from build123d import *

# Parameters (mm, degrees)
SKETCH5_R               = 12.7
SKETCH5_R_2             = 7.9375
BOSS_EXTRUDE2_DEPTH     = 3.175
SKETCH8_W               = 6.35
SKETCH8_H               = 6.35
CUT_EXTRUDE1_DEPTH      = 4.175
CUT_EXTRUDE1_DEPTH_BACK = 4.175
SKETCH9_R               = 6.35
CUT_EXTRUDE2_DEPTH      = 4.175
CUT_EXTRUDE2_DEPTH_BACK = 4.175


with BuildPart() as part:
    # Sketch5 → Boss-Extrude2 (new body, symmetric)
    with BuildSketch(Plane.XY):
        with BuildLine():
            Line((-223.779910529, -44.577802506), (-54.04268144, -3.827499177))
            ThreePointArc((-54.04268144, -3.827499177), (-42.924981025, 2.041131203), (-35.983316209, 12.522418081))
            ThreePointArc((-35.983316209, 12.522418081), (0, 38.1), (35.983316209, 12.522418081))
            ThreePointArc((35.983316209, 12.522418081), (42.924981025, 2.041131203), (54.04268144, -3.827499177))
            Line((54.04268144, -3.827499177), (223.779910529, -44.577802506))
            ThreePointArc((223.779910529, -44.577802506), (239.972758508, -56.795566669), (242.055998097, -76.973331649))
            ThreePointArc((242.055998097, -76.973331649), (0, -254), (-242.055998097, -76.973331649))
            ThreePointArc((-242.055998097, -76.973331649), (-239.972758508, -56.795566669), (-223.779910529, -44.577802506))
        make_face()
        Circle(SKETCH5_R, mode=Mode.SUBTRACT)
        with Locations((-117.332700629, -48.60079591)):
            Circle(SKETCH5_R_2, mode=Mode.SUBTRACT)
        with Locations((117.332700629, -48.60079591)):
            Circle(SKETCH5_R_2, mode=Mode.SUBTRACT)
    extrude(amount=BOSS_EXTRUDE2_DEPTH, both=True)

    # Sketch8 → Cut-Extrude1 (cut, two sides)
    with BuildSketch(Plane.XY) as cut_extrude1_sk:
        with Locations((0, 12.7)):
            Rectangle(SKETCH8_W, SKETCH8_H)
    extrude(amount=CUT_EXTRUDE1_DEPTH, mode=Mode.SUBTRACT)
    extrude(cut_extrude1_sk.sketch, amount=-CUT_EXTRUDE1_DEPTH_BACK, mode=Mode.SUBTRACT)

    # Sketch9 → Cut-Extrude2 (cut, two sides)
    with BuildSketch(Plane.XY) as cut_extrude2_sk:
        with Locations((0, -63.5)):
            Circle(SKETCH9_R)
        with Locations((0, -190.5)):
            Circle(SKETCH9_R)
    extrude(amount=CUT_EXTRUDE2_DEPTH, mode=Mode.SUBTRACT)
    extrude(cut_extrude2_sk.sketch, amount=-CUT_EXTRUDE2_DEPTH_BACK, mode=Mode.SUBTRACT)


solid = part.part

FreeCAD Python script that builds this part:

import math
import FreeCAD as App
import Part
import Sketcher
from FreeCAD import Vector
Q = App.Units.Quantity

doc = App.newDocument("Part")
params = doc.addObject("Spreadsheet::Sheet", "Params")
for row, (alias, value) in enumerate([
    ("sketch1_diameter", "1 in"),
    ("sketch1_radius", "1 in"),
    ("sketch1_radius2", "10 in"),
    ("sketch1_radius3", "1.5 in"),
    ("sketch1_diameter2", "0.625 in"),
    ("pad1_length", "0.25 in"),
    ("sketch2_width", "0.25 in"),
    ("sketch3_diameter", "0.5 in"),
], start=1):
    params.set(f"A{row}", alias)
    params.set(f"B{row}", "=" + value)
    params.setAlias(f"B{row}", alias)

body = doc.addObject("PartDesign::Body", "Body")

# Sketch on XY plane
sketch1 = body.newObject("Sketcher::SketchObject", "Sketch")
sketch1.AttachmentSupport = (doc.getObject("XY_Plane"), [""])
sketch1.MapMode = "FlatFace"
sketch1.addGeometry(Part.LineSegment(Vector(-54.042681, -3.827499, 0), Vector(-223.779911, -44.577803, 0)), False)
sketch1.addGeometry(Part.ArcOfCircle(Part.Circle(Vector(-217.850398, -69.275998, 0), Vector(0, 0, 1), 25.4), math.radians(103.5), math.radians(197.640562)), False)
sketch1.addGeometry(Part.ArcOfCircle(Part.Circle(Vector(0, 0, 0), Vector(0, 0, 1), 254), math.radians(-162.359438), math.radians(-17.640562)), False)
sketch1.addGeometry(Part.ArcOfCircle(Part.Circle(Vector(217.850398, -69.275998, 0), Vector(0, 0, 1), 25.4), math.radians(-17.640562), math.radians(76.5)), False)
sketch1.addGeometry(Part.LineSegment(Vector(223.779911, -44.577803, 0), Vector(54.042681, -3.827499, 0)), False)
sketch1.addGeometry(Part.ArcOfCircle(Part.Circle(Vector(59.972194, 20.870697, 0), Vector(0, 0, 1), 25.4), math.radians(-160.811785), math.radians(-103.5)), False)
sketch1.addGeometry(Part.ArcOfCircle(Part.Circle(Vector(0, 0, 0), Vector(0, 0, 1), 38.1), math.radians(19.188215), math.radians(160.811785)), False)
sketch1.addGeometry(Part.ArcOfCircle(Part.Circle(Vector(-59.972194, 20.870697, 0), Vector(0, 0, 1), 25.4), math.radians(-76.5), math.radians(-19.188215)), False)
sketch1.addGeometry(Part.Circle(Vector(117.332701, -48.600796, 0), Vector(0, 0, 1), 7.9375), False)
sketch1.addGeometry(Part.Circle(Vector(-117.332701, -48.600796, 0), Vector(0, 0, 1), 7.9375), False)
sketch1.addGeometry(Part.Circle(Vector(0, 0, 0), Vector(0, 0, 1), 12.7), False)
sketch1.addConstraint(Sketcher.Constraint("Tangent", 0, 2, 1, 1))
sketch1.addConstraint(Sketcher.Constraint("Tangent", 1, 2, 2, 1))
sketch1.addConstraint(Sketcher.Constraint("Tangent", 2, 2, 3, 1))
sketch1.addConstraint(Sketcher.Constraint("Tangent", 3, 2, 4, 1))
sketch1.addConstraint(Sketcher.Constraint("Tangent", 4, 2, 5, 2))
sketch1.addConstraint(Sketcher.Constraint("Tangent", 5, 1, 6, 1))
sketch1.addConstraint(Sketcher.Constraint("Tangent", 6, 2, 7, 2))
sketch1.addConstraint(Sketcher.Constraint("Tangent", 7, 1, 0, 1))
sketch1.addConstraint(Sketcher.Constraint("Coincident", 2, 3, -1, 1))
sketch1.addConstraint(Sketcher.Constraint("Coincident", 6, 3, -1, 1))
sketch1.addConstraint(Sketcher.Constraint("Coincident", 10, 3, -1, 1))
sketch1.addConstraint(Sketcher.Constraint("Equal", 1, 3))
sketch1.addConstraint(Sketcher.Constraint("Equal", 3, 5))
sketch1.addConstraint(Sketcher.Constraint("Equal", 5, 7))
sketch1.addConstraint(Sketcher.Constraint("Equal", 8, 9))
sketch1.addConstraint(Sketcher.Constraint("Symmetric", 8, 3, 9, 3, -2))
sketch1.addConstraint(Sketcher.Constraint("Symmetric", 0, 2, 3, 2, -2))
sketch1.addConstraint(Sketcher.Constraint("Diameter", 10, Q("1 in")))
sketch1.addConstraint(Sketcher.Constraint("Radius", 1, Q("1 in")))
sketch1.addConstraint(Sketcher.Constraint("Radius", 2, Q("10 in")))
sketch1.addConstraint(Sketcher.Constraint("Radius", 6, Q("1.5 in")))
sketch1.addConstraint(Sketcher.Constraint("Diameter", 8, Q("0.625 in")))
sketch1.addConstraint(Sketcher.Constraint("Angle", 0, Q("-166.5 deg")))
sketch1.addConstraint(Sketcher.Constraint("DistanceX", 1, 3, -1, 1, 217.850398))
sketch1.addConstraint(Sketcher.Constraint("DistanceX", -1, 1, 8, 3, 117.332701))
sketch1.addConstraint(Sketcher.Constraint("DistanceY", 8, 3, -1, 1, 48.600796))
sketch1.setExpression("Constraints[17]", "Params.sketch1_diameter")
sketch1.setExpression("Constraints[18]", "Params.sketch1_radius")
sketch1.setExpression("Constraints[19]", "Params.sketch1_radius2")
sketch1.setExpression("Constraints[20]", "Params.sketch1_radius3")
sketch1.setExpression("Constraints[21]", "Params.sketch1_diameter2")
pad1 = body.newObject("PartDesign::Pad", "Pad")
pad1.Profile = sketch1
pad1.setExpression("Length", "Params.pad1_length")
pad1.Midplane = True

# Sketch on XY plane
sketch2 = body.newObject("Sketcher::SketchObject", "Sketch001")
sketch2.AttachmentSupport = (doc.getObject("XY_Plane"), [""])
sketch2.MapMode = "FlatFace"
sketch2.addGeometry(Part.LineSegment(Vector(-3.175, 15.875, 0), Vector(-3.175, 9.525, 0)), False)
sketch2.addGeometry(Part.LineSegment(Vector(-3.175, 9.525, 0), Vector(3.175, 9.525, 0)), False)
sketch2.addGeometry(Part.LineSegment(Vector(3.175, 9.525, 0), Vector(3.175, 15.875, 0)), False)
sketch2.addGeometry(Part.LineSegment(Vector(3.175, 15.875, 0), Vector(-3.175, 15.875, 0)), False)
sketch2.addConstraint(Sketcher.Constraint("Coincident", 0, 2, 1, 1))
sketch2.addConstraint(Sketcher.Constraint("Coincident", 1, 2, 2, 1))
sketch2.addConstraint(Sketcher.Constraint("Coincident", 2, 2, 3, 1))
sketch2.addConstraint(Sketcher.Constraint("Coincident", 3, 2, 0, 1))
sketch2.addConstraint(Sketcher.Constraint("Vertical", 0))
sketch2.addConstraint(Sketcher.Constraint("Horizontal", 1))
sketch2.addConstraint(Sketcher.Constraint("Vertical", 2))
sketch2.addConstraint(Sketcher.Constraint("Horizontal", 3))
sketch2.addConstraint(Sketcher.Constraint("Equal", 3, 0))
sketch2.addConstraint(Sketcher.Constraint("DistanceX", 1, 1, 1, 2, Q("0.25 in")))
sketch2.addConstraint(Sketcher.Constraint("DistanceX", 0, 2, -1, 1, Q("0.125 in")))
sketch2.addConstraint(Sketcher.Constraint("DistanceY", -1, 1, 0, 2, Q("0.375 in")))
sketch2.setExpression("Constraints[9]", "Params.sketch2_width")
pocket1 = body.newObject("PartDesign::Pocket", "Pocket")
pocket1.Profile = sketch2
pocket1.Type = "ThroughAll"
pocket1.Midplane = True

# Sketch on XY plane
sketch3 = body.newObject("Sketcher::SketchObject", "Sketch002")
sketch3.AttachmentSupport = (doc.getObject("XY_Plane"), [""])
sketch3.MapMode = "FlatFace"
sketch3.addGeometry(Part.Circle(Vector(0, -63.5, 0), Vector(0, 0, 1), 6.35), False)
sketch3.addGeometry(Part.Circle(Vector(0, -190.5, 0), Vector(0, 0, 1), 6.35), False)
sketch3.addConstraint(Sketcher.Constraint("Equal", 0, 1))
sketch3.addConstraint(Sketcher.Constraint("PointOnObject", 0, 3, -2))
sketch3.addConstraint(Sketcher.Constraint("PointOnObject", 1, 3, -2))
sketch3.addConstraint(Sketcher.Constraint("Diameter", 0, Q("0.5 in")))
sketch3.addConstraint(Sketcher.Constraint("DistanceY", 1, 3, 0, 3, Q("5 in")))
sketch3.addConstraint(Sketcher.Constraint("DistanceY", 0, 3, -1, 1, Q("2.5 in")))
sketch3.setExpression("Constraints[3]", "Params.sketch3_diameter")
pocket2 = body.newObject("PartDesign::Pocket", "Pocket001")
pocket2.Profile = sketch3
pocket2.Type = "ThroughAll"
pocket2.Midplane = True

doc.recompute()
